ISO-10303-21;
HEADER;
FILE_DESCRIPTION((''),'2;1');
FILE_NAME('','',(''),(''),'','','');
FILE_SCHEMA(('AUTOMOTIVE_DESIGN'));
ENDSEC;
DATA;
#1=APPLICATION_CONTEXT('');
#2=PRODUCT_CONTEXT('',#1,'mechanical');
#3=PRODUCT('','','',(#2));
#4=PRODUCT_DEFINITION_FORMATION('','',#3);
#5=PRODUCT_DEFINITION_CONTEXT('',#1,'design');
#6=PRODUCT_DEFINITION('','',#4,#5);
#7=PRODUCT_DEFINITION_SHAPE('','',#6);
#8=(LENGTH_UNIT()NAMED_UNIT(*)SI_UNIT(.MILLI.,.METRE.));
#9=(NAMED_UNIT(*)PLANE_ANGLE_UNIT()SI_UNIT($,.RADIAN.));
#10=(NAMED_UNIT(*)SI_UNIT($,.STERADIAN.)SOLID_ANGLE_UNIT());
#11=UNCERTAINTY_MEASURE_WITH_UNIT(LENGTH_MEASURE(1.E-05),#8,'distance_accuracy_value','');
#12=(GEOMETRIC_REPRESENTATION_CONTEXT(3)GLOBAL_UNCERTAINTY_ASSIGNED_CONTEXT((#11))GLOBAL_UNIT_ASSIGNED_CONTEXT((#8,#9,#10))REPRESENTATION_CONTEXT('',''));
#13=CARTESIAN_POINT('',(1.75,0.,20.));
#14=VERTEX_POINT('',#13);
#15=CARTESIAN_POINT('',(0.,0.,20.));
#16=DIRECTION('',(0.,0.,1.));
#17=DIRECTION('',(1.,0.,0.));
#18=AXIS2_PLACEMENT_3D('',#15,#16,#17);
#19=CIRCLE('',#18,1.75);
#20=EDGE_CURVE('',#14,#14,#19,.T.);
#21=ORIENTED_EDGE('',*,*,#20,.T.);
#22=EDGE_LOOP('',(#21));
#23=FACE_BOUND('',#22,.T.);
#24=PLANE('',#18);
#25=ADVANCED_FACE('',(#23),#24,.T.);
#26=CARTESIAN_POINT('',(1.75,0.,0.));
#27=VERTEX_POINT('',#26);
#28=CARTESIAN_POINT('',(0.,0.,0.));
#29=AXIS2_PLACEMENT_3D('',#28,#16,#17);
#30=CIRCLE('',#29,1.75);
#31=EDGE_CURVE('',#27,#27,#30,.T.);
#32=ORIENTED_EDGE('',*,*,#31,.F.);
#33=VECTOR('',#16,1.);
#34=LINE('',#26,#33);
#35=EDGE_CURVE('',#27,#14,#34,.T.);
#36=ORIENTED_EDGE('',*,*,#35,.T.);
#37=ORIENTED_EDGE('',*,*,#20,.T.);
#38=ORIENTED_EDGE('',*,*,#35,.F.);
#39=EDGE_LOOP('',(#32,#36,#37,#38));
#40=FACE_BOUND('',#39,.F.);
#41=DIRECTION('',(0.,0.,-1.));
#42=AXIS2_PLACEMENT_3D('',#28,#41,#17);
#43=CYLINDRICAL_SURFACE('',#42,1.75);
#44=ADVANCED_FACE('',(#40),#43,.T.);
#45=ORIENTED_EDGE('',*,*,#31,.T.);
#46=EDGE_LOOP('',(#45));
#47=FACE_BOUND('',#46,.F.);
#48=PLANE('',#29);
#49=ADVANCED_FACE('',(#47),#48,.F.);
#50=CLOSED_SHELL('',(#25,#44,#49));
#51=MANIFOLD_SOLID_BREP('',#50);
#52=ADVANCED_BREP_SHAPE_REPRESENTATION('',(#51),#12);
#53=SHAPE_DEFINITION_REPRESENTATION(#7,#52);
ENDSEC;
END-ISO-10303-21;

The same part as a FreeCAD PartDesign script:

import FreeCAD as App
import Part
import Sketcher

V = App.Vector

doc = App.newDocument("Part")
params = doc.addObject("Spreadsheet::Sheet", "Params")
for row, (alias, value) in enumerate([
    ("sketch1_diameter", "3.5 mm"),
    ("pad1_length", "20 mm"),
], start=1):
    params.set(f"A{row}", alias)
    params.set(f"B{row}", "=" + value)
    params.setAlias(f"B{row}", alias)

body = doc.addObject("PartDesign::Body", "Body")

# Sketch on XY plane
sketch1 = doc.addObject("Sketcher::SketchObject", "Sketch")
body.addObject(sketch1)
sketch1.AttachmentSupport = (doc.XY_Plane, [""])
sketch1.MapMode = "FlatFace"
sketch1.addGeometry(Part.Circle(V(0, 0, 0), V(0, 0, 1), 1.8), False)
sketch1.addConstraint([
    Sketcher.Constraint("Coincident", 0, 3, -1, 1),
    Sketcher.Constraint("Diameter", 0, 3.5),
])
sketch1.setExpression("Constraints[1]", "Params.sketch1_diameter")
pad1 = doc.addObject("PartDesign::Pad", "Pad")
body.addObject(pad1)
pad1.Profile = sketch1
pad1.setExpression("Length", "Params.pad1_length")

doc.recompute()
